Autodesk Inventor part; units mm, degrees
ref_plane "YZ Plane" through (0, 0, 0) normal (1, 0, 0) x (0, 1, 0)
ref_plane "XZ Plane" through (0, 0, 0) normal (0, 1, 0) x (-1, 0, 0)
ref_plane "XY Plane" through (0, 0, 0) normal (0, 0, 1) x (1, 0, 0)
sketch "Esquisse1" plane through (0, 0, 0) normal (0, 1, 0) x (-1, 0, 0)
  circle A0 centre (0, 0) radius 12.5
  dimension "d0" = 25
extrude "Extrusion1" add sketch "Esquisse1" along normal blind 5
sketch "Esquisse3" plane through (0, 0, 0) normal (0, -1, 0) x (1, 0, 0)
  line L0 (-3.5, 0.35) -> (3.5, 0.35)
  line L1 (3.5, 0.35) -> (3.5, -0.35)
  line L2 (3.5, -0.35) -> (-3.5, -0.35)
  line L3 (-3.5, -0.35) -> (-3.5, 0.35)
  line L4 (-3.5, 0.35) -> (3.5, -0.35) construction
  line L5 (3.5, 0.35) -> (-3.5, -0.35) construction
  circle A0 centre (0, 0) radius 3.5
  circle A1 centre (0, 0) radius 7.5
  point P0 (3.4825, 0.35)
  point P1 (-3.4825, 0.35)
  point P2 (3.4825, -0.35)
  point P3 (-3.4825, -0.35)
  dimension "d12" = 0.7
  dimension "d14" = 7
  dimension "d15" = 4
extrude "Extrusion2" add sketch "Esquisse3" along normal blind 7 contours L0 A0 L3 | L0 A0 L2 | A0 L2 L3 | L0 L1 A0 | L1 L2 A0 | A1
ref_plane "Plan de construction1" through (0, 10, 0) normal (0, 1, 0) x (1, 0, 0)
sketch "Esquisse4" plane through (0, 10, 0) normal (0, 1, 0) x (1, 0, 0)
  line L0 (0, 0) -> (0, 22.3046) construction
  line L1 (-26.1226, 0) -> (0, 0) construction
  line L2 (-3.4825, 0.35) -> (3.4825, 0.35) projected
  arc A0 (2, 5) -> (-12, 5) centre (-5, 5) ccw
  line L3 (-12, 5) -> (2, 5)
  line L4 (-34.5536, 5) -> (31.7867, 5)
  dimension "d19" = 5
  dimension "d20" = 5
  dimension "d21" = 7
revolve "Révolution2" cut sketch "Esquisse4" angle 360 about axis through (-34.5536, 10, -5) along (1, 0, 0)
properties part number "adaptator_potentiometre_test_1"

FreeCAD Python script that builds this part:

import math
import FreeCAD as App
import Part
import Sketcher

V = App.Vector

doc = App.newDocument("Part")
body = doc.addObject("PartDesign::Body", "Body")

# Sketch on XZ plane
sketch1 = body.newObject("Sketcher::SketchObject", "Sketch")
sketch1.AttachmentSupport = (doc.getObject("XZ_Plane"), [""])
sketch1.MapMode = "FlatFace"
sketch1.addGeometry(Part.Circle(V(0, 0, 0), V(0, 0, 1), 12.5), False)
sketch1.addConstraint(Sketcher.Constraint("Coincident", 0, 3, -1, 1))
sketch1.addConstraint(Sketcher.Constraint("Diameter", 0, 25.0))
pad1 = body.newObject("PartDesign::Pad", "Pad")
pad1.Profile = sketch1
pad1.Length = 5
pad1.Reversed = True

# Sketch on XZ plane
sketch2 = body.newObject("Sketcher::SketchObject", "Sketch001")
sketch2.AttachmentSupport = (doc.getObject("XZ_Plane"), [""])
sketch2.MapMode = "FlatFace"
sketch2.addGeometry(Part.Circle(V(0, 0, 0), V(0, 0, 1), 7.5), False)
sketch2.addGeometry(Part.ArcOfCircle(Part.Circle(V(0, 0, 0), V(0, 0, 1), 3.5), math.radians(5.73917), math.radians(174.26083)), False)
sketch2.addGeometry(Part.LineSegment(V(3.482456, 0.35, 0), V(-3.482456, 0.35, 0)), False)
sketch2.addGeometry(Part.ArcOfCircle(Part.Circle(V(0, 0, 0), V(0, 0, 1), 3.5), math.radians(-174.26083), math.radians(-5.73917)), False)
sketch2.addGeometry(Part.LineSegment(V(-3.482456, -0.35, 0), V(3.482456, -0.35, 0)), False)
sketch2.addConstraint(Sketcher.Constraint("Coincident", 1, 1, 2, 1))
sketch2.addConstraint(Sketcher.Constraint("Coincident", 2, 2, 1, 2))
sketch2.addConstraint(Sketcher.Constraint("Coincident", 3, 1, 4, 1))
sketch2.addConstraint(Sketcher.Constraint("Coincident", 4, 2, 3, 2))
sketch2.addConstraint(Sketcher.Constraint("Horizontal", 2))
sketch2.addConstraint(Sketcher.Constraint("Horizontal", 4))
sketch2.addConstraint(Sketcher.Constraint("Coincident", 0, 3, -1, 1))
sketch2.addConstraint(Sketcher.Constraint("Coincident", 1, 3, -1, 1))
sketch2.addConstraint(Sketcher.Constraint("Coincident", 3, 3, -1, 1))
sketch2.addConstraint(Sketcher.Constraint("Equal", 1, 3))
sketch2.addConstraint(Sketcher.Constraint("Vertical", 2, 2, 3, 1))
sketch2.addConstraint(Sketcher.Constraint("Radius", 1, 3.5))
sketch2.addConstraint(Sketcher.Constraint("Diameter", 0, 15.0))
sketch2.addConstraint(Sketcher.Constraint("DistanceY", 3, 1, 2, 2, 0.7))
pad2 = body.newObject("PartDesign::Pad", "Pad001")
pad2.Profile = sketch2
pad2.Length = 7

# Sketch on XZ plane
sketch3 = body.newObject("Sketcher::SketchObject", "Sketch002")
sketch3.AttachmentSupport = (doc.getObject("XZ_Plane"), [""])
sketch3.MapMode = "FlatFace"
sketch3.AttachmentOffset = App.Placement(V(0, 0, -10), App.Rotation())
sketch3.addGeometry(Part.LineSegment(V(-12, -5, 0), V(2, -5, 0)), False)
sketch3.addGeometry(Part.ArcOfCircle(Part.Circle(V(-5, -5, 0), V(0, 0, 1), 7), math.radians(180), math.radians(360)), False)
sketch3.addGeometry(Part.LineSegment(V(-12, -5, 0), V(2, -5, 0)), True)  # axis
sketch3.addConstraint(Sketcher.Constraint("Coincident", 0, 1, 1, 1))
sketch3.addConstraint(Sketcher.Constraint("Coincident", 1, 2, 0, 2))
sketch3.addConstraint(Sketcher.Constraint("Horizontal", 0))
sketch3.addConstraint(Sketcher.Constraint("Horizontal", 2))
sketch3.addConstraint(Sketcher.Constraint("Coincident", 2, 1, 0, 1))
sketch3.addConstraint(Sketcher.Constraint("Horizontal", 1, 3, 0, 1))
sketch3.addConstraint(Sketcher.Constraint("Equal", 0, 2))
sketch3.addConstraint(Sketcher.Constraint("Radius", 1, 7.0))
sketch3.addConstraint(Sketcher.Constraint("DistanceX", 1, 3, -1, 1, 5.0))
sketch3.addConstraint(Sketcher.Constraint("DistanceY", 1, 3, -1, 1, 5.0))
groove = body.newObject("PartDesign::Groove", "Groove")
groove.Profile = sketch3
groove.ReferenceAxis = (sketch3, ["Axis0"])
groove.Angle = 360

doc.recompute()
